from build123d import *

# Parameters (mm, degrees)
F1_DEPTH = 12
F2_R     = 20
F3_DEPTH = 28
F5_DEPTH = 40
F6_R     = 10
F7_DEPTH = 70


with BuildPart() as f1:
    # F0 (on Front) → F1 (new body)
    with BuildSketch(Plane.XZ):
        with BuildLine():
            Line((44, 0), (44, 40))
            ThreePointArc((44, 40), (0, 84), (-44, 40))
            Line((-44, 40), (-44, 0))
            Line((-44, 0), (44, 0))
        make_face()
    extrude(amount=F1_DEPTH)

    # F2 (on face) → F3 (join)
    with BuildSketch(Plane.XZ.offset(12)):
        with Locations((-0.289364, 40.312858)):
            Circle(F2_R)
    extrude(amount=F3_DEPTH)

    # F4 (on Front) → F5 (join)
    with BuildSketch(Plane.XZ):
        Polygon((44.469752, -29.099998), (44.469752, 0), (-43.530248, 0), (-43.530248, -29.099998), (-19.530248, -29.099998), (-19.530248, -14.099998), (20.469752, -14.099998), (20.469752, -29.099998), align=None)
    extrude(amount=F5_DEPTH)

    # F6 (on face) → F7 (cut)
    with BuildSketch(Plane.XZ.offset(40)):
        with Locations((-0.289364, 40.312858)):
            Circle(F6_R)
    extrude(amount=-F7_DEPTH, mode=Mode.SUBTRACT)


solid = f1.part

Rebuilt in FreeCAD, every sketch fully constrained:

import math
import FreeCAD as App
import Part
import Sketcher

V = App.Vector


def add_polygon(sketch, points):
    """Adds a closed chain of lines whose ends are joined by coincident constraints."""
    first, n = sketch.GeometryCount, len(points)
    for a, b in zip(points, points[1:] + points[:1]):
        sketch.addGeometry(Part.LineSegment(App.Vector(*a, 0), App.Vector(*b, 0)), False)
    for i in range(n):
        sketch.addConstraint(Sketcher.Constraint("Coincident", first + i, 2, first + (i + 1) % n, 1))

doc = App.newDocument("Part")
body = doc.addObject("PartDesign::Body", "Body")

# Sketch on XZ plane
sketch1 = body.newObject("Sketcher::SketchObject", "Sketch")
sketch1.AttachmentSupport = (doc.getObject("XZ_Plane"), [""])
sketch1.MapMode = "FlatFace"
sketch1.addGeometry(Part.LineSegment(V(44, 0, 0), V(44, 40, 0)), False)
sketch1.addGeometry(Part.ArcOfCircle(Part.Circle(V(0, 40, 0), V(0, 0, 1), 44), math.radians(0), math.radians(180)), False)
sketch1.addGeometry(Part.LineSegment(V(-44, 40, 0), V(-44, 0, 0)), False)
sketch1.addGeometry(Part.LineSegment(V(-44, 0, 0), V(44, 0, 0)), False)
sketch1.addConstraint(Sketcher.Constraint("Tangent", 0, 2, 1, 1))
sketch1.addConstraint(Sketcher.Constraint("Tangent", 1, 2, 2, 1))
sketch1.addConstraint(Sketcher.Constraint("Coincident", 2, 2, 3, 1))
sketch1.addConstraint(Sketcher.Constraint("Coincident", 3, 2, 0, 1))
sketch1.addConstraint(Sketcher.Constraint("Vertical", 0))
sketch1.addConstraint(Sketcher.Constraint("Vertical", 2))
sketch1.addConstraint(Sketcher.Constraint("Horizontal", 3))
sketch1.addConstraint(Sketcher.Constraint("Symmetric", 2, 2, 3, 2, -1, 1))
sketch1.addConstraint(Sketcher.Constraint("Radius", 1, 44.0))
sketch1.addConstraint(Sketcher.Constraint("DistanceY", 0, 1, 0, 2, 40.0))
pad1 = body.newObject("PartDesign::Pad", "Pad")
pad1.Profile = sketch1
pad1.Length = 12

# Sketch on XZ plane
sketch2 = body.newObject("Sketcher::SketchObject", "Sketch001")
sketch2.AttachmentSupport = (doc.getObject("XZ_Plane"), [""])
sketch2.MapMode = "FlatFace"
sketch2.AttachmentOffset = App.Placement(V(0, 0, 12), App.Rotation())
sketch2.addGeometry(Part.Circle(V(-0.289364, 40.312858, 0), V(0, 0, 1), 20), False)
sketch2.addConstraint(Sketcher.Constraint("Diameter", 0, 40.0))
sketch2.addConstraint(Sketcher.Constraint("DistanceX", 0, 3, -1, 1, 0.289364))
sketch2.addConstraint(Sketcher.Constraint("DistanceY", -1, 1, 0, 3, 40.312858))
pad2 = body.newObject("PartDesign::Pad", "Pad001")
pad2.Profile = sketch2
pad2.Length = 28

# Sketch on XZ plane
sketch3 = body.newObject("Sketcher::SketchObject", "Sketch002")
sketch3.AttachmentSupport = (doc.getObject("XZ_Plane"), [""])
sketch3.MapMode = "FlatFace"
add_polygon(sketch3, [(44.469752, -29.099998), (44.469752, 0), (-43.530248, 0), (-43.530248, -29.099998), (-19.530248, -29.099998), (-19.530248, -14.099998), (20.469752, -14.099998), (20.469752, -29.099998)])  # lines 0-7
sketch3.addConstraint(Sketcher.Constraint("Vertical", 0))
sketch3.addConstraint(Sketcher.Constraint("Horizontal", 1))
sketch3.addConstraint(Sketcher.Constraint("Vertical", 2))
sketch3.addConstraint(Sketcher.Constraint("Horizontal", 3))
sketch3.addConstraint(Sketcher.Constraint("Vertical", 4))
sketch3.addConstraint(Sketcher.Constraint("Horizontal", 5))
sketch3.addConstraint(Sketcher.Constraint("Vertical", 6))
sketch3.addConstraint(Sketcher.Constraint("Horizontal", 7))
sketch3.addConstraint(Sketcher.Constraint("PointOnObject", 0, 2, -1))
sketch3.addConstraint(Sketcher.Constraint("Horizontal", 3, 2, 6, 2))
sketch3.addConstraint(Sketcher.Constraint("Equal", 3, 7))
sketch3.addConstraint(Sketcher.Constraint("DistanceX", 1, 2, 1, 1, 88.0))
sketch3.addConstraint(Sketcher.Constraint("DistanceX", 3, 1, 3, 2, 24.0))
sketch3.addConstraint(Sketcher.Constraint("DistanceY", 4, 1, 4, 2, 15.0))
sketch3.addConstraint(Sketcher.Constraint("DistanceY", 0, 1, 0, 2, 29.099998))
sketch3.addConstraint(Sketcher.Constraint("DistanceX", 3, 2, -1, 1, 19.530248))
pad3 = body.newObject("PartDesign::Pad", "Pad002")
pad3.Profile = sketch3
pad3.Length = 40

# Sketch on XZ plane
sketch4 = body.newObject("Sketcher::SketchObject", "Sketch003")
sketch4.AttachmentSupport = (doc.getObject("XZ_Plane"), [""])
sketch4.MapMode = "FlatFace"
sketch4.AttachmentOffset = App.Placement(V(0, 0, 40), App.Rotation())
sketch4.addGeometry(Part.Circle(V(-0.289364, 40.312858, 0), V(0, 0, 1), 10), False)
sketch4.addConstraint(Sketcher.Constraint("Diameter", 0, 20.0))
sketch4.addConstraint(Sketcher.Constraint("DistanceX", 0, 3, -1, 1, 0.289364))
sketch4.addConstraint(Sketcher.Constraint("DistanceY", -1, 1, 0, 3, 40.312858))
pocket1 = body.newObject("PartDesign::Pocket", "Pocket")
pocket1.Profile = sketch4
pocket1.Length = 70

doc.recompute()
